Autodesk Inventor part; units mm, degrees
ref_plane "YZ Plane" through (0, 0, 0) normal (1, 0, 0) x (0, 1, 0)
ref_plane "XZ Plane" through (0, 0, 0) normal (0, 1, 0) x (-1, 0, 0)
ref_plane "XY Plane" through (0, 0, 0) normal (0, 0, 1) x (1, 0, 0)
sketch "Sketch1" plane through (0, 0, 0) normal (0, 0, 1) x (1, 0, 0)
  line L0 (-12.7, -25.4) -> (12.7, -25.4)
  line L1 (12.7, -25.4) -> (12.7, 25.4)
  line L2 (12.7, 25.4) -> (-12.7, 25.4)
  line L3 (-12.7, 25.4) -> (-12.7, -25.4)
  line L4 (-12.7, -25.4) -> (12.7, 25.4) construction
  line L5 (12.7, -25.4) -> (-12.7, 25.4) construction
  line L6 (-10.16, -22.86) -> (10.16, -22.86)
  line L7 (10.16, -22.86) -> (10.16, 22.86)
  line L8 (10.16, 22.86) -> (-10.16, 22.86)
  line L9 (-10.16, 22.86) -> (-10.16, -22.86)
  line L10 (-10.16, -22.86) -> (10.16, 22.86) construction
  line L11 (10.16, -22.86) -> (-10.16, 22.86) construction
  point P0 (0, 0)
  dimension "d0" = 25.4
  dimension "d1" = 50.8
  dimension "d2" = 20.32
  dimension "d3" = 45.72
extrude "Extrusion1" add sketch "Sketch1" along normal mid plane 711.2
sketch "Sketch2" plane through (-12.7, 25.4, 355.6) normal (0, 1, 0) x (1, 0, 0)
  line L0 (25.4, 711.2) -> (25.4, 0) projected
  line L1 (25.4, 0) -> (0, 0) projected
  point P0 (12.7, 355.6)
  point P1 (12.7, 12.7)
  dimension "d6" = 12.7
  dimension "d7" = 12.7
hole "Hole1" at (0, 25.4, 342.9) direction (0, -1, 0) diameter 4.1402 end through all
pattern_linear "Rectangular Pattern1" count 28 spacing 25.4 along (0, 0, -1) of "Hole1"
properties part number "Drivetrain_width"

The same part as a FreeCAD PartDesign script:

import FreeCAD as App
import Part
import Sketcher
Q = App.Units.Quantity


def add_polygon(sketch, points):
    """Adds a closed chain of lines whose ends are joined by coincident constraints."""
    first, n = sketch.GeometryCount, len(points)
    for a, b in zip(points, points[1:] + points[:1]):
        sketch.addGeometry(Part.LineSegment(App.Vector(*a, 0), App.Vector(*b, 0)), False)
    for i in range(n):
        sketch.addConstraint(Sketcher.Constraint("Coincident", first + i, 2, first + (i + 1) % n, 1))

doc = App.newDocument("Part")
body = doc.addObject("PartDesign::Body", "Body")

# Sketch on XY plane
sketch1 = doc.addObject("Sketcher::SketchObject", "Sketch")
body.addObject(sketch1)
sketch1.AttachmentSupport = (doc.XY_Plane, [""])
sketch1.MapMode = "FlatFace"
add_polygon(sketch1, [(-13, 25), (-13, -25), (13, -25), (13, 25)])  # lines 0-3
add_polygon(sketch1, [(10, -23), (-10, -23), (-10, 23), (10, 23)])  # lines 4-7
sketch1.addConstraint([
    Sketcher.Constraint("Vertical", 0),
    Sketcher.Constraint("Horizontal", 1),
    Sketcher.Constraint("Vertical", 2),
    Sketcher.Constraint("Horizontal", 3),
    Sketcher.Constraint("Horizontal", 4),
    Sketcher.Constraint("Vertical", 5),
    Sketcher.Constraint("Horizontal", 6),
    Sketcher.Constraint("Vertical", 7),
    Sketcher.Constraint("Symmetric", 0, 2, 2, 2, -1, 1),
    Sketcher.Constraint("Symmetric", 4, 2, 6, 2, -1, 1),
    Sketcher.Constraint("DistanceX", 1, 1, 1, 2, Q("1 in")),
    Sketcher.Constraint("DistanceY", 0, 2, 0, 1, Q("2 in")),
    Sketcher.Constraint("DistanceX", 4, 2, 4, 1, Q("0.8 in")),
    Sketcher.Constraint("DistanceY", 5, 1, 5, 2, Q("1.8 in")),
])
pad1 = doc.addObject("PartDesign::Pad", "Pad")
body.addObject(pad1)
pad1.Profile = sketch1
pad1.Length = Q("28 in")
pad1.Midplane = True

# Sketch on XZ plane
sketch2 = doc.addObject("Sketcher::SketchObject", "Sketch001")
body.addObject(sketch2)
sketch2.AttachmentSupport = (doc.XZ_Plane, [""])
sketch2.MapMode = "FlatFace"
sketch2.AttachmentOffset = App.Placement(App.Vector(0, 0, -1 * 25.4), App.Rotation())
sketch2.addGeometry(Part.Circle(App.Vector(0, 342.9, 0), App.Vector(0, 0, 1), 2.1), False)
sketch2.addConstraint([
    Sketcher.Constraint("PointOnObject", 0, 3, -2),
    Sketcher.Constraint("Diameter", 0, Q("0.163 in")),
    Sketcher.Constraint("DistanceY", -1, 1, 0, 3, Q("13.5 in")),
])
doc.recompute()
hole = doc.addObject("PartDesign::Hole", "Hole")
body.addObject(hole)
hole.Profile = sketch2
hole.ThreadType = "None"
hole.Diameter = Q("0.163 in")
hole.DepthType = "ThroughAll"
hole.Reversed = True
doc.recompute()

linearpattern = doc.addObject("PartDesign::LinearPattern", "LinearPattern")
body.addObject(linearpattern)
linearpattern.Originals = [hole]
linearpattern.Direction = (doc.Z_Axis, [""])
linearpattern.Mode = "offset"
linearpattern.Offset = Q("1 in")
linearpattern.Occurrences = 28
linearpattern.Reversed = True
body.Tip = linearpattern

doc.recompute()
